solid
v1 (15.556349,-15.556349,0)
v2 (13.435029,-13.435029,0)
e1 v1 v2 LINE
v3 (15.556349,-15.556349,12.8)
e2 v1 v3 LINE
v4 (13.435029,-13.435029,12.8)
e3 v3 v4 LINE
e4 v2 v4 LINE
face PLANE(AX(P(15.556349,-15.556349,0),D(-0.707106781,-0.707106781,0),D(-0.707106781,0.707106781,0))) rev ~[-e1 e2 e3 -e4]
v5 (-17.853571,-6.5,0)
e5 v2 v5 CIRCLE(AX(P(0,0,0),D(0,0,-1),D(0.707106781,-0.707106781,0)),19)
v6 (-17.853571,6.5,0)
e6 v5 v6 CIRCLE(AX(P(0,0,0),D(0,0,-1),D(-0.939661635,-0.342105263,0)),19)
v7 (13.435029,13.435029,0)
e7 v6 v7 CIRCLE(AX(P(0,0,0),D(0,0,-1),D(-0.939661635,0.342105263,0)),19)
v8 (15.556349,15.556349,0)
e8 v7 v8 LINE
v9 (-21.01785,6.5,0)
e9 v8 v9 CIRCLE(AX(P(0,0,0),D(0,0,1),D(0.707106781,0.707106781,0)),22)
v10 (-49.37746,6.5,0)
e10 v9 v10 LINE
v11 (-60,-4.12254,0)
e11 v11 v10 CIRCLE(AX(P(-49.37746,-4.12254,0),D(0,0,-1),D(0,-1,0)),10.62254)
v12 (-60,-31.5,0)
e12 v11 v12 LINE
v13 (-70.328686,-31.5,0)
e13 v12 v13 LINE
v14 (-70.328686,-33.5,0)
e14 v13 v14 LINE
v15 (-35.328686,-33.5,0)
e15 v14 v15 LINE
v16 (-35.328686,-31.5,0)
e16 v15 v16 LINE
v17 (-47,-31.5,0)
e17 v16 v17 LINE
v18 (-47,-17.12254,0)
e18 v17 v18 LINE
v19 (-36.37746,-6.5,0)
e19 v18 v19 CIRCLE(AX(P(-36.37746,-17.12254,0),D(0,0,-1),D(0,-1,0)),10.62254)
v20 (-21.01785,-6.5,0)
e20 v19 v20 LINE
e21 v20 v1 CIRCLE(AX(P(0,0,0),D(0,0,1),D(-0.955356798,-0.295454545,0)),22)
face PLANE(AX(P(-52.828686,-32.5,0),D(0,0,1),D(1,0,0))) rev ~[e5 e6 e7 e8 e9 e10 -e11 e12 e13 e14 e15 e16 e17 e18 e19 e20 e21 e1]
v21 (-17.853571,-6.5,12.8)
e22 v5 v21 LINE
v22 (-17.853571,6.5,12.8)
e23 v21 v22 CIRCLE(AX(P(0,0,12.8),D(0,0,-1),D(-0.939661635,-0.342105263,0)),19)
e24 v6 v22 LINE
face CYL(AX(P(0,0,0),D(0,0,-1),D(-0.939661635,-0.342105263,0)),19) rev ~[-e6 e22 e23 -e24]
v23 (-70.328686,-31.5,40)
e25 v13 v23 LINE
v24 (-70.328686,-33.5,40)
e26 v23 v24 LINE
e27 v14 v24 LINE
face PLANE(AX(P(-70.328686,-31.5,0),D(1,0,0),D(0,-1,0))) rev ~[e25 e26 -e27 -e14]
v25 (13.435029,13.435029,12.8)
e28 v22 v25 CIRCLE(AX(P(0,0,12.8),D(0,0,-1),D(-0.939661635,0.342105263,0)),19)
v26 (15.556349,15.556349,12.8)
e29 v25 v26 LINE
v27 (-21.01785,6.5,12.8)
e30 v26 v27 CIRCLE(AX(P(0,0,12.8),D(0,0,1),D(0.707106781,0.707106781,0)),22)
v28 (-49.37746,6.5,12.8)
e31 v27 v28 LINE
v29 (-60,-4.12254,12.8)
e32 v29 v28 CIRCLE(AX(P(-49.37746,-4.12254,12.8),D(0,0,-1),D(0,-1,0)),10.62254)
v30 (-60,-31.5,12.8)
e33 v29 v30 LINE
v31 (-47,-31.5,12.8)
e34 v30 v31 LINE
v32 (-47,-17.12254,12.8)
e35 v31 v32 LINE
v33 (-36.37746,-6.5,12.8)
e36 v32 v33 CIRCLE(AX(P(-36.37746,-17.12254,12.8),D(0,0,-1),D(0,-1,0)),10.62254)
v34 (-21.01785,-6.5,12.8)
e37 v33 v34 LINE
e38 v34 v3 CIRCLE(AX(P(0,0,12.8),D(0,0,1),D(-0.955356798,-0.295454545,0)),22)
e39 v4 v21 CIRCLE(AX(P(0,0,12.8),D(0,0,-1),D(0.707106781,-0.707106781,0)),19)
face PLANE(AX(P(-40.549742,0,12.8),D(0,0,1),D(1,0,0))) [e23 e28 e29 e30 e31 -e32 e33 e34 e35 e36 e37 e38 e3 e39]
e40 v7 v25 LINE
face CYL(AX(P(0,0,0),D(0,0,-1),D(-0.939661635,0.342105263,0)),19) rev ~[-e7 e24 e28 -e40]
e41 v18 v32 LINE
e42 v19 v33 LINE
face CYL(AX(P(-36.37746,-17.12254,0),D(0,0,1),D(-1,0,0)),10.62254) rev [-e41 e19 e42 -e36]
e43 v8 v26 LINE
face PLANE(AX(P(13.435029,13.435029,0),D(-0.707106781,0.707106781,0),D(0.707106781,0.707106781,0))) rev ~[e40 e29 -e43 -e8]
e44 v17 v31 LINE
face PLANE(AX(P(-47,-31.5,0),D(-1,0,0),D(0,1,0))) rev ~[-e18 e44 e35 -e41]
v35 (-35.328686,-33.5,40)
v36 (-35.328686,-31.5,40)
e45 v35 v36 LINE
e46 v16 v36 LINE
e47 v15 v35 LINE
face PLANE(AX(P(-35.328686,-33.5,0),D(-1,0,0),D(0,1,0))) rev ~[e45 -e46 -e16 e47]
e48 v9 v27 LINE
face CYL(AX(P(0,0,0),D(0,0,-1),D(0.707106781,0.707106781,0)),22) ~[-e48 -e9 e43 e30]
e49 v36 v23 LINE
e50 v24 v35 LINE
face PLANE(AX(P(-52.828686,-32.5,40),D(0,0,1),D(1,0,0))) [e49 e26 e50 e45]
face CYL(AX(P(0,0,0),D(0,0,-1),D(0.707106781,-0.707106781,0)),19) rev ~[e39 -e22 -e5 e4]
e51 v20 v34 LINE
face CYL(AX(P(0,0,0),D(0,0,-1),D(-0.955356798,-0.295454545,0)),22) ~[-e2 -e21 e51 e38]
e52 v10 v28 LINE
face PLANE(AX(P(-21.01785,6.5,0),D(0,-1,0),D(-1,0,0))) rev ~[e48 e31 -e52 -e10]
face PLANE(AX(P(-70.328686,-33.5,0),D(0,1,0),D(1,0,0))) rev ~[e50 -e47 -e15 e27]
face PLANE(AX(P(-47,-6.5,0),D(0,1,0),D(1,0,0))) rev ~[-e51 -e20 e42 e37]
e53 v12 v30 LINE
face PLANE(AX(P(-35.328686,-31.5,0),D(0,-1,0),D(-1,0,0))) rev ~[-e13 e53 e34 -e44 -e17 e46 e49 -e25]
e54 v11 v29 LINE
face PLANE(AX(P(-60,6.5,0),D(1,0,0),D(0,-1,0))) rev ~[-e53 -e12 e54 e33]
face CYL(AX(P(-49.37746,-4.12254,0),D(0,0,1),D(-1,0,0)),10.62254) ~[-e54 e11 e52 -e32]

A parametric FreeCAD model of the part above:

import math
import FreeCAD as App
import Part
import Sketcher
from FreeCAD import Vector
Q = App.Units.Quantity


def edges_at(feature, points):
    """Names of the edges that pass closest to the given points."""
    edges = feature.Shape.Edges
    near = lambda p: min(range(len(edges)), key=lambda i: edges[i].distToShape(Part.Vertex(*p))[0])
    return sorted({f"Edge{near(p) + 1}" for p in points})


def add_polygon(sketch, points):
    """Adds a closed chain of lines whose ends are joined by coincident constraints."""
    first, n = sketch.GeometryCount, len(points)
    for a, b in zip(points, points[1:] + points[:1]):
        sketch.addGeometry(Part.LineSegment(App.Vector(*a, 0), App.Vector(*b, 0)), False)
    for i in range(n):
        sketch.addConstraint(Sketcher.Constraint("Coincident", first + i, 2, first + (i + 1) % n, 1))

doc = App.newDocument("Part")
params = doc.addObject("Spreadsheet::Sheet", "Params")
for row, (alias, value) in enumerate([
    ("sketch1_radius", "22 mm"),
    ("sketch1_radius2", "19 mm"),
    ("sketch1_width", "13 mm"),
    ("sketch1_height", "38 mm"),
    ("sketch1_height2", "25 mm"),
    ("pad1_length", "12.8 mm"),
    ("sketch2_width", "35 mm"),
    ("sketch2_height", "2 mm"),
    ("pad2_length", "40 mm"),
    ("fillet_radius", "10.62254 mm"),
], start=1):
    params.set(f"A{row}", alias)
    params.set(f"B{row}", "=" + value)
    params.setAlias(f"B{row}", alias)

body = doc.addObject("PartDesign::Body", "Body")

# Sketch on XY plane
sketch1 = body.newObject("Sketcher::SketchObject", "Sketch")
sketch1.AttachmentSupport = (doc.getObject("XY_Plane"), [""])
sketch1.MapMode = "FlatFace"
sketch1.addGeometry(Part.LineSegment(Vector(-60, 6.5, 0), Vector(-60, -31.5, 0)), False)
sketch1.addGeometry(Part.LineSegment(Vector(-60, -31.5, 0), Vector(-47, -31.5, 0)), False)
sketch1.addGeometry(Part.LineSegment(Vector(-47, -31.5, 0), Vector(-47, -6.5, 0)), False)
sketch1.addGeometry(Part.LineSegment(Vector(-47, -6.5, 0), Vector(-21, -6.5, 0)), False)
sketch1.addGeometry(Part.ArcOfCircle(Part.Circle(Vector(0, 0, 0), Vector(0, 0, 1), 22), math.radians(-163), math.radians(-45)), False)
sketch1.addGeometry(Part.LineSegment(Vector(15.6, -15.6, 0), Vector(13.4, -13.4, 0)), False)
sketch1.addGeometry(Part.ArcOfCircle(Part.Circle(Vector(0, 0, 0), Vector(0, 0, 1), 19), math.radians(-160), math.radians(-45)), False)
sketch1.addGeometry(Part.ArcOfCircle(Part.Circle(Vector(0, 0, 0), Vector(0, 0, 1), 19), math.radians(160), math.radians(200)), False)
sketch1.addGeometry(Part.ArcOfCircle(Part.Circle(Vector(0, 0, 0), Vector(0, 0, 1), 19), math.radians(45), math.radians(160)), False)
sketch1.addGeometry(Part.LineSegment(Vector(13.4, 13.4, 0), Vector(15.6, 15.6, 0)), False)
sketch1.addGeometry(Part.ArcOfCircle(Part.Circle(Vector(0, 0, 0), Vector(0, 0, 1), 22), math.radians(45), math.radians(163)), False)
sketch1.addGeometry(Part.LineSegment(Vector(-21, 6.5, 0), Vector(-60, 6.5, 0)), False)
sketch1.addConstraint(Sketcher.Constraint("Coincident", 0, 2, 1, 1))
sketch1.addConstraint(Sketcher.Constraint("Coincident", 1, 2, 2, 1))
sketch1.addConstraint(Sketcher.Constraint("Coincident", 2, 2, 3, 1))
sketch1.addConstraint(Sketcher.Constraint("Coincident", 3, 2, 4, 1))
sketch1.addConstraint(Sketcher.Constraint("Coincident", 4, 2, 5, 1))
sketch1.addConstraint(Sketcher.Constraint("Coincident", 5, 2, 6, 2))
sketch1.addConstraint(Sketcher.Constraint("Tangent", 6, 1, 7, 2))
sketch1.addConstraint(Sketcher.Constraint("Tangent", 7, 1, 8, 2))
sketch1.addConstraint(Sketcher.Constraint("Coincident", 8, 1, 9, 1))
sketch1.addConstraint(Sketcher.Constraint("Coincident", 9, 2, 10, 1))
sketch1.addConstraint(Sketcher.Constraint("Coincident", 10, 2, 11, 1))
sketch1.addConstraint(Sketcher.Constraint("Coincident", 11, 2, 0, 1))
sketch1.addConstraint(Sketcher.Constraint("Vertical", 0))
sketch1.addConstraint(Sketcher.Constraint("Horizontal", 1))
sketch1.addConstraint(Sketcher.Constraint("Vertical", 2))
sketch1.addConstraint(Sketcher.Constraint("Horizontal", 3))
sketch1.addConstraint(Sketcher.Constraint("Horizontal", 11))
sketch1.addConstraint(Sketcher.Constraint("Coincident", 4, 3, -1, 1))
sketch1.addConstraint(Sketcher.Constraint("Coincident", 6, 3, -1, 1))
sketch1.addConstraint(Sketcher.Constraint("Coincident", 8, 3, -1, 1))
sketch1.addConstraint(Sketcher.Constraint("Coincident", 10, 3, -1, 1))
sketch1.addConstraint(Sketcher.Constraint("Equal", 4, 10))
sketch1.addConstraint(Sketcher.Constraint("Perpendicular", 5, 9))
sketch1.addConstraint(Sketcher.Constraint("Horizontal", 3, 2, 6, 1))
sketch1.addConstraint(Sketcher.Constraint("Horizontal", 7, 1, 10, 2))
sketch1.addConstraint(Sketcher.Constraint("Vertical", 6, 1, 7, 1))
sketch1.addConstraint(Sketcher.Constraint("Vertical", 5, 2, 8, 1))
sketch1.addConstraint(Sketcher.Constraint("Vertical", 4, 2, 9, 2))
sketch1.addConstraint(Sketcher.Constraint("Radius", 4, Q("22 mm")))
sketch1.addConstraint(Sketcher.Constraint("Radius", 6, Q("19 mm")))
sketch1.addConstraint(Sketcher.Constraint("DistanceX", 1, 1, 1, 2, Q("13 mm")))
sketch1.addConstraint(Sketcher.Constraint("DistanceY", 0, 2, 0, 1, Q("38 mm")))
sketch1.addConstraint(Sketcher.Constraint("DistanceY", 2, 1, 2, 2, Q("25 mm")))
sketch1.addConstraint(Sketcher.Constraint("DistanceX", 0, 2, -1, 1, Q("60 mm")))
sketch1.addConstraint(Sketcher.Constraint("DistanceX", -1, 1, 4, 2, Q("15.556349 mm")))
sketch1.setExpression("Constraints[28]", "Params.sketch1_radius")
sketch1.setExpression("Constraints[29]", "Params.sketch1_radius2")
sketch1.setExpression("Constraints[30]", "Params.sketch1_width")
sketch1.setExpression("Constraints[31]", "Params.sketch1_height")
sketch1.setExpression("Constraints[32]", "Params.sketch1_height2")
pad1 = body.newObject("PartDesign::Pad", "Pad")
pad1.Profile = sketch1
pad1.setExpression("Length", "Params.pad1_length")

# Sketch on XY plane
sketch2 = body.newObject("Sketcher::SketchObject", "Sketch001")
sketch2.AttachmentSupport = (doc.getObject("XY_Plane"), [""])
sketch2.MapMode = "FlatFace"
add_polygon(sketch2, [(-35.3, -31.5), (-70.3, -31.5), (-70.3, -33.5), (-35.3, -33.5)])  # lines 0-3
sketch2.addConstraint(Sketcher.Constraint("Horizontal", 0))
sketch2.addConstraint(Sketcher.Constraint("Vertical", 1))
sketch2.addConstraint(Sketcher.Constraint("Horizontal", 2))
sketch2.addConstraint(Sketcher.Constraint("Vertical", 3))
sketch2.addConstraint(Sketcher.Constraint("DistanceX", 0, 2, 0, 1, Q("35 mm")))
sketch2.addConstraint(Sketcher.Constraint("DistanceY", 1, 2, 1, 1, Q("2 mm")))
sketch2.addConstraint(Sketcher.Constraint("DistanceY", 0, 2, -1, 1, Q("31.5 mm")))
sketch2.addConstraint(Sketcher.Constraint("DistanceX", 0, 2, -1, 1, Q("70.328686 mm")))
sketch2.setExpression("Constraints[8]", "Params.sketch2_width")
sketch2.setExpression("Constraints[9]", "Params.sketch2_height")
pad2 = body.newObject("PartDesign::Pad", "Pad001")
pad2.Profile = sketch2
pad2.setExpression("Length", "Params.pad2_length")
doc.recompute()

fillet = body.newObject("PartDesign::Fillet", "Fillet")
fillet.Base = (pad2, edges_at(pad2, [(-60, 6.5, 6.4), (-47, -6.5, 6.4)]))
fillet.setExpression("Radius", "Params.fillet_radius")

doc.recompute()
